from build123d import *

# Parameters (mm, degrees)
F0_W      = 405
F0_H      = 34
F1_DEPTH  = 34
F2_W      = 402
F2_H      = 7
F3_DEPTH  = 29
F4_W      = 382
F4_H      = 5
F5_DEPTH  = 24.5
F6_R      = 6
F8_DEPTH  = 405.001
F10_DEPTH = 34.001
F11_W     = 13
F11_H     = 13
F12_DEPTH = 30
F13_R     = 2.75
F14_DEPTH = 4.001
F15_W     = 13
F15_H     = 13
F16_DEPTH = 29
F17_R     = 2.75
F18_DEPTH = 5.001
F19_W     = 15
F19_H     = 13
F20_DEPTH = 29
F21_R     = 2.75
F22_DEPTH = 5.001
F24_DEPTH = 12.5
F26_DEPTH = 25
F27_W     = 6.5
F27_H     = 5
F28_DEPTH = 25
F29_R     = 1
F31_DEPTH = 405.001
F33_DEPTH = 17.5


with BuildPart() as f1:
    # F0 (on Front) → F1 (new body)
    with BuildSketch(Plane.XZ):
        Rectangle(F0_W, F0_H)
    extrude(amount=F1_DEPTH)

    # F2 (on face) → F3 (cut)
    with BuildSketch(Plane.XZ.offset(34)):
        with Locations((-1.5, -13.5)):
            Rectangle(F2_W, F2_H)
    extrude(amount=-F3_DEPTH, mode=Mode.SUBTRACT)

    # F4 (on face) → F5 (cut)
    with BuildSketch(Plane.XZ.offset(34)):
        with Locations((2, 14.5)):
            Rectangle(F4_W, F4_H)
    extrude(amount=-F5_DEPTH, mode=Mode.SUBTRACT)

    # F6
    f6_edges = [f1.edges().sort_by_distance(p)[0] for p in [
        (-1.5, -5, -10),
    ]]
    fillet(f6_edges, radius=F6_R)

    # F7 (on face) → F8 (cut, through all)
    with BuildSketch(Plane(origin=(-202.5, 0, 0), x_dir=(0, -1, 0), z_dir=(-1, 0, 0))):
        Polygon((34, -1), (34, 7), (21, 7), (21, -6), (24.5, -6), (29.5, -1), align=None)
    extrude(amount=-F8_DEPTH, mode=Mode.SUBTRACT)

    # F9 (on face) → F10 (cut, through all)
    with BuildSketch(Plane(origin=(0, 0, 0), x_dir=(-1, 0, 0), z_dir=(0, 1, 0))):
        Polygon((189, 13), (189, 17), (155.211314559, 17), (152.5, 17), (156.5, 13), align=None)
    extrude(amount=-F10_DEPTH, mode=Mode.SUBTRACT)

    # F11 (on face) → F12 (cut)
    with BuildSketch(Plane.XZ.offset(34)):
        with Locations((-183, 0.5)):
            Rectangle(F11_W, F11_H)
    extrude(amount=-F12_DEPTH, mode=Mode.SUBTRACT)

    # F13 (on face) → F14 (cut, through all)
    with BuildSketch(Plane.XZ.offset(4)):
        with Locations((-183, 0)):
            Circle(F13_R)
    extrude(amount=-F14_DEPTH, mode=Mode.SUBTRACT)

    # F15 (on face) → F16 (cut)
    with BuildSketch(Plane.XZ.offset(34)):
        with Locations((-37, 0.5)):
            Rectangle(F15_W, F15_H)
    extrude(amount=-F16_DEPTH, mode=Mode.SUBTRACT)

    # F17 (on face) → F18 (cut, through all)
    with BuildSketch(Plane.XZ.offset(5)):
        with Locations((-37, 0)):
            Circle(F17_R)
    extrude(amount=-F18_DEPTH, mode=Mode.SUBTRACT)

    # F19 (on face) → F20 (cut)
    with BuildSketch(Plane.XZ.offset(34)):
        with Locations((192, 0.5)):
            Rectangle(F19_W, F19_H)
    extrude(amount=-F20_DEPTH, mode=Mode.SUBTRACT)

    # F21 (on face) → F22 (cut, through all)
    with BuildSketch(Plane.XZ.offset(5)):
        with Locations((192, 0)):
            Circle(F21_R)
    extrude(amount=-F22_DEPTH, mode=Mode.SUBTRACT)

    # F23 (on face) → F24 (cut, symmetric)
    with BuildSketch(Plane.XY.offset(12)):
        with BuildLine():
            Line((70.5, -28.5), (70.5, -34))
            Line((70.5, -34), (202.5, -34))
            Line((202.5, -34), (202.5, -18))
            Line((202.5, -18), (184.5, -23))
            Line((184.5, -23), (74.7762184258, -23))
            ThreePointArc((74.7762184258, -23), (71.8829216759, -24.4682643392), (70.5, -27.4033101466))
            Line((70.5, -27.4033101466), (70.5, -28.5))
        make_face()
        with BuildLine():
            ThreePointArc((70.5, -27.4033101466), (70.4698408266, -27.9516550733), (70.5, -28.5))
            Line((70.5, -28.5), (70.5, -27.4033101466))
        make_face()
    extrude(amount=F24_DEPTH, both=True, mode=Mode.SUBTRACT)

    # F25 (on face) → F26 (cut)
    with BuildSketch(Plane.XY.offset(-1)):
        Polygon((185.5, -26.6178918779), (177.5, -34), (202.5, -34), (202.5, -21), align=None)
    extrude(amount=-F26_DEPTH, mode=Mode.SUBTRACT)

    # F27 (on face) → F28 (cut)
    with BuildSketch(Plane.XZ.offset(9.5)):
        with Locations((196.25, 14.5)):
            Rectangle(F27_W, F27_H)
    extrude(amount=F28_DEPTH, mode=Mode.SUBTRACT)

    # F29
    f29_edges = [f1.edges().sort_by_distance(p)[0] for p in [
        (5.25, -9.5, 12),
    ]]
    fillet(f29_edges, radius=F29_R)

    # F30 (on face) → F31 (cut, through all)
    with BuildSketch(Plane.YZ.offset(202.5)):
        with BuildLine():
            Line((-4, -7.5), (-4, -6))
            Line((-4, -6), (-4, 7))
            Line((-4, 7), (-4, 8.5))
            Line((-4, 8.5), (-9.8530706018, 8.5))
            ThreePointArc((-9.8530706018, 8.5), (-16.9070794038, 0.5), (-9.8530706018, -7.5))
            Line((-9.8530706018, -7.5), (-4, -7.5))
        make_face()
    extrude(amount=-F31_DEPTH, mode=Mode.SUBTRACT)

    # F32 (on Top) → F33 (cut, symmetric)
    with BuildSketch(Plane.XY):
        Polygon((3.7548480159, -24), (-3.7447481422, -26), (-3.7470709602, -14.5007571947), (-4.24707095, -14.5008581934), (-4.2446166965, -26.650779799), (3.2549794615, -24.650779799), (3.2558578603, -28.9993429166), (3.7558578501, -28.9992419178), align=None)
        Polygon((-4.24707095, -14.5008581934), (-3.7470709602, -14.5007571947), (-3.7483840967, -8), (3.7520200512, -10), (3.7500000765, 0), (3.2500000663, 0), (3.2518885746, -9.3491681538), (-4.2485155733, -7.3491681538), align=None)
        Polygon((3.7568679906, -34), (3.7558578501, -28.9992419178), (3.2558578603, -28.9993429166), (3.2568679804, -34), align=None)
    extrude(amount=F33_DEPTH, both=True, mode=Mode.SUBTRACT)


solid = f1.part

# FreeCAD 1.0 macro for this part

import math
import FreeCAD as App
import Part
import Sketcher

V = App.Vector
Q = App.Units.Quantity


def edges_at(feature, points):
    """Names of the edges that pass closest to the given points."""
    edges = feature.Shape.Edges
    near = lambda p: min(range(len(edges)), key=lambda i: edges[i].distToShape(Part.Vertex(*p))[0])
    return sorted({f"Edge{near(p) + 1}" for p in points})


def add_polygon(sketch, points):
    """Adds a closed chain of lines whose ends are joined by coincident constraints."""
    first, n = sketch.GeometryCount, len(points)
    for a, b in zip(points, points[1:] + points[:1]):
        sketch.addGeometry(Part.LineSegment(App.Vector(*a, 0), App.Vector(*b, 0)), False)
    for i in range(n):
        sketch.addConstraint(Sketcher.Constraint("Coincident", first + i, 2, first + (i + 1) % n, 1))

doc = App.newDocument("Part")
params = doc.addObject("Spreadsheet::Sheet", "Params")
for row, (alias, value) in enumerate([
    ("sketch1_width", "405 mm"),
    ("sketch1_height", "34 mm"),
    ("pad1_length", "34 mm"),
    ("sketch2_width", "402 mm"),
    ("sketch2_height", "7 mm"),
    ("pocket1_length", "29 mm"),
    ("sketch3_width", "382 mm"),
    ("sketch3_height", "5 mm"),
    ("pocket2_length", "24.5 mm"),
    ("fillet_radius", "6 mm"),
    ("sketch4_width", "13 mm"),
    ("sketch4_height", "8 mm"),
    ("sketch4_width2", "3.5 mm"),
    ("sketch5_height", "4 mm"),
    ("sketch5_width", "36.5 mm"),
    ("sketch6_width", "13 mm"),
    ("pocket5_length", "30 mm"),
    ("sketch7_diameter", "5.5 mm"),
    ("sketch8_width", "13 mm"),
    ("pocket7_length", "29 mm"),
    ("sketch9_diameter", "5.5 mm"),
    ("sketch10_width", "15 mm"),
    ("sketch10_height", "13 mm"),
    ("pocket9_length", "29 mm"),
    ("sketch11_diameter", "5.5 mm"),
    ("sketch12_radius", "5 mm"),
    ("sketch12_width", "132 mm"),
    ("sketch12_height", "16 mm"),
    ("sketch12_height2", "5.5 mm"),
    ("pocket11_length", "25 mm"),
    ("sketch13_width", "25 mm"),
    ("sketch13_height", "13 mm"),
    ("pocket12_length", "25 mm"),
    ("sketch14_height", "5 mm"),
    ("sketch14_width", "6.5 mm"),
    ("pocket13_length", "25 mm"),
    ("fillet2_radius", "1 mm"),
    ("sketch15_height", "16 mm"),
    ("sketch16_length", "10 mm"),
    ("sketch16_width", "0.5 mm"),
    ("pocket15_length", "35 mm"),
], start=1):
    params.set(f"A{row}", alias)
    params.set(f"B{row}", "=" + value)
    params.setAlias(f"B{row}", alias)

body = doc.addObject("PartDesign::Body", "Body")
body.AllowCompound = True

sketch1 = body.newObject("Sketcher::SketchObject", "Sketch")
sketch1.AttachmentSupport = (doc.getObject("XZ_Plane"), [""])
sketch1.MapMode = "FlatFace"
add_polygon(sketch1, [(-202, 17), (-202, -17), (202, -17), (202, 17)])
sketch1.addConstraint([
    Sketcher.Constraint("Vertical", 0),
    Sketcher.Constraint("Horizontal", 1),
    Sketcher.Constraint("Vertical", 2),
    Sketcher.Constraint("Horizontal", 3),
    Sketcher.Constraint("Symmetric", 0, 2, 2, 2, -1, 1),
    Sketcher.Constraint("DistanceX", 1, 1, 1, 2, 405.0),
    Sketcher.Constraint("DistanceY", 0, 2, 0, 1, 34.0),
])
sketch1.setExpression("Constraints[9]", "Params.sketch1_width")
sketch1.setExpression("Constraints[10]", "Params.sketch1_height")
pad1 = body.newObject("PartDesign::Pad", "Pad")
pad1.Profile = sketch1
pad1.setExpression("Length", "Params.pad1_length")

sketch2 = body.newObject("Sketcher::SketchObject", "Sketch001")
sketch2.AttachmentSupport = (doc.getObject("XZ_Plane"), [""])
sketch2.MapMode = "FlatFace"
sketch2.AttachmentOffset = App.Placement(V(0, 0, 34), App.Rotation())
add_polygon(sketch2, [(-202, -10), (-202, -17), (200, -17), (200, -10)])
sketch2.addConstraint([
    Sketcher.Constraint("Vertical", 0),
    Sketcher.Constraint("Horizontal", 1),
    Sketcher.Constraint("Vertical", 2),
    Sketcher.Constraint("Horizontal", 3),
    Sketcher.Constraint("DistanceX", 1, 1, 1, 2, 402.0),
    Sketcher.Constraint("DistanceY", 0, 2, 0, 1, 7.0),
    Sketcher.Constraint("DistanceY", 0, 2, -1, 1, 17.0),
    Sketcher.Constraint("DistanceX", 0, 2, -1, 1, 202.5),
])
sketch2.setExpression("Constraints[8]", "Params.sketch2_width")
sketch2.setExpression("Constraints[9]", "Params.sketch2_height")
pocket1 = body.newObject("PartDesign::Pocket", "Pocket")
pocket1.Profile = sketch2
pocket1.setExpression("Length", "Params.pocket1_length")

sketch3 = body.newObject("Sketcher::SketchObject", "Sketch002")
sketch3.AttachmentSupport = (doc.getObject("XZ_Plane"), [""])
sketch3.MapMode = "FlatFace"
sketch3.AttachmentOffset = App.Placement(V(0, 0, 34), App.Rotation())
add_polygon(sketch3, [(-189, 17), (-189, 12), (193, 12), (193, 17)])
sketch3.addConstraint([
    Sketcher.Constraint("Vertical", 0),
    Sketcher.Constraint("Horizontal", 1),
    Sketcher.Constraint("Vertical", 2),
    Sketcher.Constraint("Horizontal", 3),
    Sketcher.Constraint("DistanceX", 1, 1, 1, 2, 382.0),
    Sketcher.Constraint("DistanceY", 0, 2, 0, 1, 5.0),
    Sketcher.Constraint("DistanceX", 0, 2, -1, 1, 189.0),
    Sketcher.Constraint("DistanceY", -1, 1, 0, 2, 12.0),
])
sketch3.setExpression("Constraints[8]", "Params.sketch3_width")
sketch3.setExpression("Constraints[9]", "Params.sketch3_height")
pocket2 = body.newObject("PartDesign::Pocket", "Pocket001")
pocket2.Profile = sketch3
pocket2.setExpression("Length", "Params.pocket2_length")
doc.recompute()

fillet = body.newObject("PartDesign::Fillet", "Fillet")
fillet.Base = (pocket2, edges_at(pocket2, [(-1.5, -5, -10)]))
fillet.setExpression("Radius", "Params.fillet_radius")

sketch4 = body.newObject("Sketcher::SketchObject", "Sketch003")
sketch4.AttachmentSupport = (doc.getObject("YZ_Plane"), [""])
sketch4.MapMode = "FlatFace"
sketch4.AttachmentOffset = App.Placement(V(0, 0, -202.5), App.Rotation())
add_polygon(sketch4, [(-34, -1), (-34, 7), (-21, 7), (-21, -6), (-24.5, -6), (-29.5, -1)])
sketch4.addConstraint([
    Sketcher.Constraint("Vertical", 0),
    Sketcher.Constraint("Horizontal", 1),
    Sketcher.Constraint("Vertical", 2),
    Sketcher.Constraint("Horizontal", 3),
    Sketcher.Constraint("Horizontal", 5),
    Sketcher.Constraint("Equal", 1, 2),
    Sketcher.Constraint("DistanceX", 1, 1, 1, 2, 13.0),
    Sketcher.Constraint("DistanceY", 0, 1, 0, 2, 8.0),
    Sketcher.Constraint("Angle", 4, Q("135 deg")),
    Sketcher.Constraint("DistanceX", 3, 2, 3, 1, 3.5),
    Sketcher.Constraint("DistanceX", 0, 2, -1, 1, 34.0),
    Sketcher.Constraint("DistanceY", -1, 1, 0, 2, 7.0),
])
sketch4.setExpression("Constraints[12]", "Params.sketch4_width")
sketch4.setExpression("Constraints[13]", "Params.sketch4_height")
sketch4.setExpression("Constraints[15]", "Params.sketch4_width2")
pocket3 = body.newObject("PartDesign::Pocket", "Pocket002")
pocket3.Profile = sketch4
pocket3.Type = "ThroughAll"
pocket3.Reversed = True

sketch5 = body.newObject("Sketcher::SketchObject", "Sketch004")
sketch5.AttachmentSupport = (doc.getObject("XZ_Plane"), [""])
sketch5.MapMode = "FlatFace"
add_polygon(sketch5, [(-189, 13), (-189, 17), (-152.5, 17), (-156.5, 13)])
sketch5.addConstraint([
    Sketcher.Constraint("Vertical", 0),
    Sketcher.Constraint("Horizontal", 1),
    Sketcher.Constraint("Horizontal", 3),
    Sketcher.Constraint("DistanceY", 0, 1, 0, 2, 4.0),
    Sketcher.Constraint("Angle", 2, Q("-135 deg")),
    Sketcher.Constraint("DistanceX", 1, 1, 1, 2, 36.5),
    Sketcher.Constraint("DistanceX", 0, 2, -1, 1, 189.0),
    Sketcher.Constraint("DistanceY", -1, 1, 0, 2, 17.0),
])
sketch5.setExpression("Constraints[7]", "Params.sketch5_height")
sketch5.setExpression("Constraints[9]", "Params.sketch5_width")
pocket4 = body.newObject("PartDesign::Pocket", "Pocket003")
pocket4.Profile = sketch5
pocket4.Type = "ThroughAll"
pocket4.Reversed = True

sketch6 = body.newObject("Sketcher::SketchObject", "Sketch005")
sketch6.AttachmentSupport = (doc.getObject("XZ_Plane"), [""])
sketch6.MapMode = "FlatFace"
sketch6.AttachmentOffset = App.Placement(V(0, 0, 34), App.Rotation())
add_polygon(sketch6, [(-190, 7), (-190, -6), (-176, -6), (-176, 7)])
sketch6.addConstraint([
    Sketcher.Constraint("Vertical", 0),
    Sketcher.Constraint("Horizontal", 1),
    Sketcher.Constraint("Vertical", 2),
    Sketcher.Constraint("Horizontal", 3),
    Sketcher.Constraint("Equal", 3, 0),
    Sketcher.Constraint("DistanceX", 1, 1, 1, 2, 13.0),
    Sketcher.Constraint("DistanceY", 0, 2, -1, 1, 6.0),
    Sketcher.Constraint("DistanceX", 0, 2, -1, 1, 189.5),
])
sketch6.setExpression("Constraints[9]", "Params.sketch6_width")
pocket5 = body.newObject("PartDesign::Pocket", "Pocket004")
pocket5.Profile = sketch6
pocket5.setExpression("Length", "Params.pocket5_length")

sketch7 = body.newObject("Sketcher::SketchObject", "Sketch006")
sketch7.AttachmentSupport = (doc.getObject("XZ_Plane"), [""])
sketch7.MapMode = "FlatFace"
sketch7.AttachmentOffset = App.Placement(V(0, 0, 4), App.Rotation())
sketch7.addGeometry(Part.Circle(V(-183, 0, 0), V(0, 0, 1), 2.8), False)
sketch7.addConstraint([
    Sketcher.Constraint("PointOnObject", 0, 3, -1),
    Sketcher.Constraint("Diameter", 0, 5.5),
    Sketcher.Constraint("DistanceX", 0, 3, -1, 1, 183.0),
])
sketch7.setExpression("Constraints[1]", "Params.sketch7_diameter")
pocket6 = body.newObject("PartDesign::Pocket", "Pocket005")
pocket6.Profile = sketch7
pocket6.Type = "ThroughAll"

sketch8 = body.newObject("Sketcher::SketchObject", "Sketch007")
sketch8.AttachmentSupport = (doc.getObject("XZ_Plane"), [""])
sketch8.MapMode = "FlatFace"
sketch8.AttachmentOffset = App.Placement(V(0, 0, 34), App.Rotation())
add_polygon(sketch8, [(-44, 7), (-44, -6), (-30, -6), (-30, 7)])
sketch8.addConstraint([
    Sketcher.Constraint("Vertical", 0),
    Sketcher.Constraint("Horizontal", 1),
    Sketcher.Constraint("Vertical", 2),
    Sketcher.Constraint("Horizontal", 3),
    Sketcher.Constraint("Equal", 3, 0),
    Sketcher.Constraint("DistanceX", 1, 1, 1, 2, 13.0),
    Sketcher.Constraint("DistanceY", 0, 2, -1, 1, 6.0),
    Sketcher.Constraint("DistanceX", 0, 2, -1, 1, 43.5),
])
sketch8.setExpression("Constraints[9]", "Params.sketch8_width")
pocket7 = body.newObject("PartDesign::Pocket", "Pocket006")
pocket7.Profile = sketch8
pocket7.setExpression("Length", "Params.pocket7_length")

sketch9 = body.newObject("Sketcher::SketchObject", "Sketch008")
sketch9.AttachmentSupport = (doc.getObject("XZ_Plane"), [""])
sketch9.MapMode = "FlatFace"
sketch9.AttachmentOffset = App.Placement(V(0, 0, 5), App.Rotation())
sketch9.addGeometry(Part.Circle(V(-37, 0, 0), V(0, 0, 1), 2.8), False)
sketch9.addConstraint([
    Sketcher.Constraint("PointOnObject", 0, 3, -1),
    Sketcher.Constraint("Diameter", 0, 5.5),
    Sketcher.Constraint("DistanceX", 0, 3, -1, 1, 37.0),
])
sketch9.setExpression("Constraints[1]", "Params.sketch9_diameter")
pocket8 = body.newObject("PartDesign::Pocket", "Pocket007")
pocket8.Profile = sketch9
pocket8.Type = "ThroughAll"

sketch10 = body.newObject("Sketcher::SketchObject", "Sketch009")
sketch10.AttachmentSupport = (doc.getObject("XZ_Plane"), [""])
sketch10.MapMode = "FlatFace"
sketch10.AttachmentOffset = App.Placement(V(0, 0, 34), App.Rotation())
add_polygon(sketch10, [(184, 7), (184, -6), (200, -6), (200, 7)])
sketch10.addConstraint([
    Sketcher.Constraint("Vertical", 0),
    Sketcher.Constraint("Horizontal", 1),
    Sketcher.Constraint("Vertical", 2),
    Sketcher.Constraint("Horizontal", 3),
    Sketcher.Constraint("DistanceX", 1, 1, 1, 2, 15.0),
    Sketcher.Constraint("DistanceY", 0, 2, 0, 1, 13.0),
    Sketcher.Constraint("DistanceY", 0, 2, -1, 1, 6.0),
    Sketcher.Constraint("DistanceX", -1, 1, 0, 2, 184.5),
])
sketch10.setExpression("Constraints[8]", "Params.sketch10_width")
sketch10.setExpression("Constraints[9]", "Params.sketch10_height")
pocket9 = body.newObject("PartDesign::Pocket", "Pocket008")
pocket9.Profile = sketch10
pocket9.setExpression("Length", "Params.pocket9_length")

sketch11 = body.newObject("Sketcher::SketchObject", "Sketch010")
sketch11.AttachmentSupport = (doc.getObject("XZ_Plane"), [""])
sketch11.MapMode = "FlatFace"
sketch11.AttachmentOffset = App.Placement(V(0, 0, 5), App.Rotation())
sketch11.addGeometry(Part.Circle(V(192, 0, 0), V(0, 0, 1), 2.8), False)
sketch11.addConstraint([
    Sketcher.Constraint("PointOnObject", 0, 3, -1),
    Sketcher.Constraint("Diameter", 0, 5.5),
    Sketcher.Constraint("DistanceX", -1, 1, 0, 3, 192.0),
])
sketch11.setExpression("Constraints[1]", "Params.sketch11_diameter")
pocket10 = body.newObject("PartDesign::Pocket", "Pocket009")
pocket10.Profile = sketch11
pocket10.Type = "ThroughAll"

sketch12 = body.newObject("Sketcher::SketchObject", "Sketch011")
sketch12.AttachmentSupport = (doc.getObject("XY_Plane"), [""])
sketch12.MapMode = "FlatFace"
sketch12.AttachmentOffset = App.Placement(V(0, 0, 12), App.Rotation())
sketch12.addGeometry([
    Part.LineSegment(V(70.5, -34, 0), V(202.5, -34, 0)),
    Part.LineSegment(V(202.5, -34, 0), V(202.5, -18, 0)),
    Part.LineSegment(V(202.5, -18, 0), V(184.5, -23, 0)),
    Part.LineSegment(V(184.5, -23, 0), V(74.8, -23, 0)),
    Part.ArcOfCircle(Part.Circle(V(75.5, -28, 0), V(0, 0, 1), 5), math.radians(98), math.radians(174)),
    Part.ArcOfCircle(Part.Circle(V(75.5, -28, 0), V(0, 0, 1), 5), math.radians(173.7), math.radians(186.3)),
    Part.LineSegment(V(70.5, -28.5, 0), V(70.5, -34, 0)),
], False)
sketch12.addConstraint([
    Sketcher.Constraint("Coincident", 0, 2, 1, 1),
    Sketcher.Constraint("Coincident", 1, 2, 2, 1),
    Sketcher.Constraint("Coincident", 2, 2, 3, 1),
    Sketcher.Constraint("Coincident", 3, 2, 4, 1),
    Sketcher.Constraint("Tangent", 4, 2, 5, 1),
    Sketcher.Constraint("Coincident", 5, 2, 6, 1),
    Sketcher.Constraint("Coincident", 6, 2, 0, 1),
    Sketcher.Constraint("Horizontal", 0),
    Sketcher.Constraint("Vertical", 1),
    Sketcher.Constraint("Horizontal", 3),
    Sketcher.Constraint("Vertical", 6),
    Sketcher.Constraint("Equal", 4, 5),
    Sketcher.Constraint("Vertical", 4, 2, 5, 2),
    Sketcher.Constraint("Radius", 4, 5.0),
    Sketcher.Constraint("DistanceX", 0, 1, 0, 2, 132.0),
    Sketcher.Constraint("DistanceY", 1, 1, 1, 2, 16.0),
    Sketcher.Constraint("DistanceY", 6, 2, 6, 1, 5.5),
    Sketcher.Constraint("DistanceY", 0, 2, -1, 1, 34.0),
    Sketcher.Constraint("DistanceY", 2, 2, -1, 1, 23.0),
    Sketcher.Constraint("DistanceX", 2, 2, 1, 2, 18.0),
    Sketcher.Constraint("DistanceX", -1, 1, 0, 2, 202.5),
    Sketcher.Constraint("DistanceX", 3, 2, 3, 1, 109.723782),
])
sketch12.setExpression("Constraints[13]", "Params.sketch12_radius")
sketch12.setExpression("Constraints[14]", "Params.sketch12_width")
sketch12.setExpression("Constraints[15]", "Params.sketch12_height")
sketch12.setExpression("Constraints[16]", "Params.sketch12_height2")
pocket11 = body.newObject("PartDesign::Pocket", "Pocket010")
pocket11.Profile = sketch12
pocket11.setExpression("Length", "Params.pocket11_length")
pocket11.Midplane = True

sketch13 = body.newObject("Sketcher::SketchObject", "Sketch012")
sketch13.AttachmentSupport = (doc.getObject("XY_Plane"), [""])
sketch13.MapMode = "FlatFace"
sketch13.AttachmentOffset = App.Placement(V(0, 0, -1), App.Rotation())
add_polygon(sketch13, [(186, -27), (178, -34), (202, -34), (202, -21)])
sketch13.addConstraint([
    Sketcher.Constraint("Horizontal", 1),
    Sketcher.Constraint("Vertical", 2),
    Sketcher.Constraint("DistanceX", 1, 1, 1, 2, 25.0),
    Sketcher.Constraint("DistanceY", 2, 1, 2, 2, 13.0),
    Sketcher.Constraint("DistanceY", 0, 2, -1, 1, 34.0),
    Sketcher.Constraint("DistanceX", 0, 2, 3, 2, 8.0),
    Sketcher.Constraint("DistanceX", -1, 1, 0, 2, 177.5),
    Sketcher.Constraint("Distance", 3, 17.904209),
])
sketch13.setExpression("Constraints[6]", "Params.sketch13_width")
sketch13.setExpression("Constraints[7]", "Params.sketch13_height")
pocket12 = body.newObject("PartDesign::Pocket", "Pocket011")
pocket12.Profile = sketch13
pocket12.setExpression("Length", "Params.pocket12_length")

sketch14 = body.newObject("Sketcher::SketchObject", "Sketch013")
sketch14.AttachmentSupport = (doc.getObject("XZ_Plane"), [""])
sketch14.MapMode = "FlatFace"
sketch14.AttachmentOffset = App.Placement(V(0, 0, 9.5), App.Rotation())
add_polygon(sketch14, [(193, 17), (193, 12), (200, 12), (200, 17)])
sketch14.addConstraint([
    Sketcher.Constraint("Vertical", 0),
    Sketcher.Constraint("Horizontal", 1),
    Sketcher.Constraint("Vertical", 2),
    Sketcher.Constraint("Horizontal", 3),
    Sketcher.Constraint("DistanceY", 0, 2, 0, 1, 5.0),
    Sketcher.Constraint("DistanceX", 1, 1, 1, 2, 6.5),
    Sketcher.Constraint("DistanceX", -1, 1, 0, 2, 193.0),
    Sketcher.Constraint("DistanceY", -1, 1, 0, 2, 12.0),
])
sketch14.setExpression("Constraints[8]", "Params.sketch14_height")
sketch14.setExpression("Constraints[9]", "Params.sketch14_width")
pocket13 = body.newObject("PartDesign::Pocket", "Pocket012")
pocket13.Profile = sketch14
pocket13.setExpression("Length", "Params.pocket13_length")
pocket13.Reversed = True
doc.recompute()

fillet2 = body.newObject("PartDesign::Fillet", "Fillet001")
fillet2.Base = (pocket13, edges_at(pocket13, [(5.25, -9.5, 12)]))
fillet2.setExpression("Radius", "Params.fillet2_radius")

sketch15 = body.newObject("Sketcher::SketchObject", "Sketch014")
sketch15.AttachmentSupport = (doc.getObject("YZ_Plane"), [""])
sketch15.MapMode = "FlatFace"
sketch15.AttachmentOffset = App.Placement(V(0, 0, 202.5), App.Rotation())
sketch15.addGeometry([
    Part.LineSegment(V(-4, -8, 0), V(-4, 8, 0)),
    Part.LineSegment(V(-4, 8, 0), V(-10, 8, 0)),
    Part.ArcOfCircle(Part.Circle(V(-9, 0, 0), V(0, 0, 1), 8), math.radians(97), math.radians(263)),
    Part.LineSegment(V(-10, -8, 0), V(-4, -8, 0)),
], False)
sketch15.addConstraint([
    Sketcher.Constraint("Coincident", 0, 2, 1, 1),
    Sketcher.Constraint("Coincident", 1, 2, 2, 1),
    Sketcher.Constraint("Coincident", 2, 2, 3, 1),
    Sketcher.Constraint("Coincident", 3, 2, 0, 1),
    Sketcher.Constraint("Vertical", 0),
    Sketcher.Constraint("Horizontal", 1),
    Sketcher.Constraint("Horizontal", 3),
    Sketcher.Constraint("Vertical", 1, 2, 2, 2),
    Sketcher.Constraint("DistanceY", 0, 1, 0, 2, 16.0),
    Sketcher.Constraint("DistanceX", 0, 2, -1, 1, 4.0),
    Sketcher.Constraint("DistanceY", -1, 1, 2, 3, 0.5),
    Sketcher.Constraint("Radius", 2, 8.063432),
    Sketcher.Constraint("DistanceX", 1, 2, 1, 1, 5.853071),
])
sketch15.setExpression("Constraints[8]", "Params.sketch15_height")
pocket14 = body.newObject("PartDesign::Pocket", "Pocket013")
pocket14.Profile = sketch15
pocket14.Type = "ThroughAll"

sketch16 = body.newObject("Sketcher::SketchObject", "Sketch015")
sketch16.AttachmentSupport = (doc.getObject("XY_Plane"), [""])
sketch16.MapMode = "FlatFace"
add_polygon(sketch16, [(3.8, -24), (-3.7, -26), (-3.7, -14.5), (-3.7, -8), (3.8, -10), (3.8, 0), (3.3, 0), (3.3, -9.3), (-4.2, -7.3), (-4.2, -14.5), (-4.2, -26.7), (3.3, -24.7), (3.3, -29), (3.3, -34), (3.8, -34), (3.8, -29)])
sketch16.addConstraint([
    Sketcher.Constraint("Horizontal", 5),
    Sketcher.Constraint("Horizontal", 13),
    Sketcher.Constraint("PointOnObject", 4, 2, -1),
    Sketcher.Constraint("Parallel", 1, 2),
    Sketcher.Constraint("Parallel", 2, 4),
    Sketcher.Constraint("Parallel", 4, 6),
    Sketcher.Constraint("Parallel", 3, 7),
    Sketcher.Constraint("Parallel", 6, 8),
    Sketcher.Constraint("Parallel", 8, 9),
    Sketcher.Constraint("Parallel", 0, 10),
    Sketcher.Constraint("Parallel", 9, 11),
    Sketcher.Constraint("Parallel", 11, 12),
    Sketcher.Constraint("Parallel", 12, 14),
    Sketcher.Constraint("Parallel", 14, 15),
    Sketcher.Constraint("Equal", 5, 13),
    Sketcher.Constraint("Equal", 3, 7),
    Sketcher.Constraint("Distance", 4, 10.0),
    Sketcher.Constraint("DistanceX", 5, 2, 5, 1, 0.5),
    Sketcher.Constraint("DistanceY", 0, 2, -1, 1, 26.0),
    Sketcher.Constraint("DistanceY", 2, 2, -1, 1, 8.0),
    Sketcher.Constraint("DistanceY", 12, 2, -1, 1, 34.0),
    Sketcher.Constraint("DistanceY", 15, 2, -1, 1, 24.0),
    Sketcher.Constraint("DistanceX", -1, 1, 4, 2, 3.75),
    Sketcher.Constraint("DistanceY", 8, 2, 1, 2, 0.000101),
    Sketcher.Constraint("DistanceY", 11, 2, 14, 2, 0.000101),
    Sketcher.Constraint("Distance", 6, 9.349168),
    Sketcher.Constraint("Distance", 8, 7.15169),
    Sketcher.Constraint("Distance", 9, 12.149922),
    Sketcher.Constraint("Distance", 14, 5.000758),
    Sketcher.Constraint("DistanceX", 0, 2, -1, 1, 3.744748),
    Sketcher.Constraint("DistanceX", 1, 2, -1, 1, 3.747071),
    Sketcher.Constraint("DistanceX", -1, 1, 10, 2, 3.254979),
])
sketch16.setExpression("Constraints[32]", "Params.sketch16_length")
sketch16.setExpression("Constraints[33]", "Params.sketch16_width")
pocket15 = body.newObject("PartDesign::Pocket", "Pocket014")
pocket15.Profile = sketch16
pocket15.setExpression("Length", "Params.pocket15_length")
pocket15.Midplane = True

doc.recompute()
